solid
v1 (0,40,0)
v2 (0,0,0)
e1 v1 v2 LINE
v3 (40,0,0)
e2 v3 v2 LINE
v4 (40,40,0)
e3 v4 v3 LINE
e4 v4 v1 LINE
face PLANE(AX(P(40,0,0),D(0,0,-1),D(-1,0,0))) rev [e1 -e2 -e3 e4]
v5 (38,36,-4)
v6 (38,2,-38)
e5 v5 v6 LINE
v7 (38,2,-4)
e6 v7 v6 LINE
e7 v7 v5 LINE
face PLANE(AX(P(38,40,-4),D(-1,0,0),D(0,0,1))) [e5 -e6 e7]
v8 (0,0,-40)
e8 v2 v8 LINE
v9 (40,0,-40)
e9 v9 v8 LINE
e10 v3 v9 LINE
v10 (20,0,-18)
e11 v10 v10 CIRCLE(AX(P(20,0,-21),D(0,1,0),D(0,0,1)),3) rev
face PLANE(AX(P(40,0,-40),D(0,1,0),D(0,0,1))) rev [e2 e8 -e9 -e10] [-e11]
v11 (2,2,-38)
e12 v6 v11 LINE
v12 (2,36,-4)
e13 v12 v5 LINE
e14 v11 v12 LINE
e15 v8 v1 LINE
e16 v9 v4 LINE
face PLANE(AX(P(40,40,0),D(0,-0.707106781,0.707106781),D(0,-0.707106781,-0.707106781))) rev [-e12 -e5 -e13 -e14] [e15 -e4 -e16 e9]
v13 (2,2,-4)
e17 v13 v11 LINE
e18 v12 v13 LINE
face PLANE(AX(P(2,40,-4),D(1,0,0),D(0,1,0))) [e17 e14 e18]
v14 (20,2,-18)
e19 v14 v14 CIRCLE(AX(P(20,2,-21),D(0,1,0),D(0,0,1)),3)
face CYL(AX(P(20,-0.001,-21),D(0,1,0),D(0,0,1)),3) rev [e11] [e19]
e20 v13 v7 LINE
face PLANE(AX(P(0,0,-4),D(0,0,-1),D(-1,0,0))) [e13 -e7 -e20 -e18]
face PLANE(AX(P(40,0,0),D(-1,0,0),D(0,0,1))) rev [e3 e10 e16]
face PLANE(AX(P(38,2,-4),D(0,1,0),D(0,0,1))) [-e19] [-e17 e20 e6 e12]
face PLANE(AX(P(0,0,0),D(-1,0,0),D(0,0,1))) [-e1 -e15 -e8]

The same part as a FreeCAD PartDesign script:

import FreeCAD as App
import Part
import Sketcher
from FreeCAD import Vector


def add_polygon(sketch, points):
    """Adds a closed chain of lines whose ends are joined by coincident constraints."""
    first, n = sketch.GeometryCount, len(points)
    for a, b in zip(points, points[1:] + points[:1]):
        sketch.addGeometry(Part.LineSegment(App.Vector(*a, 0), App.Vector(*b, 0)), False)
    for i in range(n):
        sketch.addConstraint(Sketcher.Constraint("Coincident", first + i, 2, first + (i + 1) % n, 1))

doc = App.newDocument("Part")
body = doc.addObject("PartDesign::Body", "Body")

# Sketch on YZ plane
sketch1 = body.newObject("Sketcher::SketchObject", "Sketch")
sketch1.AttachmentSupport = (doc.getObject("YZ_Plane"), [""])
sketch1.MapMode = "FlatFace"
add_polygon(sketch1, [(40, 0), (0, 0), (0, -40)])  # lines 0-2
sketch1.addConstraint([
    Sketcher.Constraint("Horizontal", 0),
    Sketcher.Constraint("Vertical", 1),
    Sketcher.Constraint("Coincident", 0, 2, -1, 1),
    Sketcher.Constraint("Equal", 0, 1),
    Sketcher.Constraint("DistanceX", 0, 2, 0, 1, 40.0),
])
pad1 = body.newObject("PartDesign::Pad", "Pad")
pad1.Profile = sketch1
pad1.Length = 40

# Sketch on XY plane
sketch2 = body.newObject("Sketcher::SketchObject", "Sketch001")
sketch2.AttachmentSupport = (doc.getObject("XY_Plane"), [""])
sketch2.MapMode = "FlatFace"
sketch2.AttachmentOffset = App.Placement(Vector(0, 0, -40), App.Rotation())
add_polygon(sketch2, [(2, 40), (2, 2), (38, 2), (38, 40)])  # lines 0-3
sketch2.addConstraint([
    Sketcher.Constraint("Vertical", 0),
    Sketcher.Constraint("Horizontal", 1),
    Sketcher.Constraint("Vertical", 2),
    Sketcher.Constraint("Horizontal", 3),
    Sketcher.Constraint("DistanceX", 1, 1, 1, 2, 36.0),
    Sketcher.Constraint("DistanceY", 0, 2, 0, 1, 38.0),
    Sketcher.Constraint("DistanceX", -1, 1, 0, 2, 2.0),
    Sketcher.Constraint("DistanceY", -1, 1, 0, 2, 2.0),
])
pocket1 = body.newObject("PartDesign::Pocket", "Pocket")
pocket1.Profile = sketch2
pocket1.Length = 36
pocket1.Reversed = True

# Sketch on XZ plane
sketch3 = body.newObject("Sketcher::SketchObject", "Sketch002")
sketch3.AttachmentSupport = (doc.getObject("XZ_Plane"), [""])
sketch3.MapMode = "FlatFace"
sketch3.AttachmentOffset = App.Placement(Vector(0, 0, -2), App.Rotation())
sketch3.addGeometry(Part.Circle(Vector(20, -21, 0), Vector(0, 0, 1), 3), False)
sketch3.addConstraint([
    Sketcher.Constraint("Diameter", 0, 6.0),
    Sketcher.Constraint("DistanceX", -1, 1, 0, 3, 20.0),
    Sketcher.Constraint("DistanceY", 0, 3, -1, 1, 21.0),
])
pocket2 = body.newObject("PartDesign::Pocket", "Pocket001")
pocket2.Profile = sketch3
pocket2.Type = "UpToFirst"
pocket2.Reversed = True

doc.recompute()
